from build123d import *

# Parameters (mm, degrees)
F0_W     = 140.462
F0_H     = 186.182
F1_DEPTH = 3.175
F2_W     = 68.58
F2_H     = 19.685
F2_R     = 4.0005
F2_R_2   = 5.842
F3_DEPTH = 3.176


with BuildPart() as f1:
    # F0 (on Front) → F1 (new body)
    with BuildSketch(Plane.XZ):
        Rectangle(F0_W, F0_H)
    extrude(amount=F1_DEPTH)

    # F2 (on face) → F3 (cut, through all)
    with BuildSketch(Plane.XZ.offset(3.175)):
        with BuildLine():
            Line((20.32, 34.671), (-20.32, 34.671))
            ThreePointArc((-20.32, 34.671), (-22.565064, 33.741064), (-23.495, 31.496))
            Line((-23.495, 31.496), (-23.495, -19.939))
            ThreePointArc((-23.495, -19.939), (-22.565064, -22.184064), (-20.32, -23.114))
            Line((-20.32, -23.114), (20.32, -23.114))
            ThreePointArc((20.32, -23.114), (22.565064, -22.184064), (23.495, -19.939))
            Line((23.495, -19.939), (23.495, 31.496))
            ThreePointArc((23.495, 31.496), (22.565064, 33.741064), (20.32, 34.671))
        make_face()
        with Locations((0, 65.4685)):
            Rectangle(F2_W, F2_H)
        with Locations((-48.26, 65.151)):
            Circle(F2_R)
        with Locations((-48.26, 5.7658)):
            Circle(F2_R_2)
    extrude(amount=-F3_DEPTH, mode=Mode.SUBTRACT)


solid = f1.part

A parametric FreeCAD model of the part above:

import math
import FreeCAD as App
import Part
import Sketcher
Q = App.Units.Quantity


def add_polygon(sketch, points):
    """Adds a closed chain of lines whose ends are joined by coincident constraints."""
    first, n = sketch.GeometryCount, len(points)
    for a, b in zip(points, points[1:] + points[:1]):
        sketch.addGeometry(Part.LineSegment(App.Vector(*a, 0), App.Vector(*b, 0)), False)
    for i in range(n):
        sketch.addConstraint(Sketcher.Constraint("Coincident", first + i, 2, first + (i + 1) % n, 1))

doc = App.newDocument("Part")
params = doc.addObject("Spreadsheet::Sheet", "Params")
for row, (alias, value) in enumerate([
    ("sketch1_width", "5.53 in"),
    ("sketch1_height", "7.33 in"),
    ("pad1_length", "0.125 in"),
    ("sketch2_diameter", "0.46 in"),
    ("sketch2_diameter2", "0.315 in"),
    ("sketch2_width", "1.6 in"),
    ("sketch2_width2", "2.7 in"),
    ("sketch2_radius", "0.125 in"),
], start=1):
    params.set(f"A{row}", alias)
    params.set(f"B{row}", "=" + value)
    params.setAlias(f"B{row}", alias)

body = doc.addObject("PartDesign::Body", "Body")

sketch1 = body.newObject("Sketcher::SketchObject", "Sketch")
sketch1.AttachmentSupport = (doc.getObject("XZ_Plane"), [""])
sketch1.MapMode = "FlatFace"
add_polygon(sketch1, [(-70, 93), (-70, -93), (70, -93), (70, 93)])
sketch1.addConstraint([
    Sketcher.Constraint("Vertical", 0),
    Sketcher.Constraint("Horizontal", 1),
    Sketcher.Constraint("Vertical", 2),
    Sketcher.Constraint("Horizontal", 3),
    Sketcher.Constraint("Symmetric", 0, 2, 2, 2, -1, 1),
    Sketcher.Constraint("DistanceX", 1, 1, 1, 2, Q("5.53 in")),
    Sketcher.Constraint("DistanceY", 0, 2, 0, 1, Q("7.33 in")),
])
sketch1.setExpression("Constraints[9]", "Params.sketch1_width")
sketch1.setExpression("Constraints[10]", "Params.sketch1_height")
pad1 = body.newObject("PartDesign::Pad", "Pad")
pad1.Profile = sketch1
pad1.setExpression("Length", "Params.pad1_length")

sketch2 = body.newObject("Sketcher::SketchObject", "Sketch001")
sketch2.AttachmentSupport = (doc.getObject("XZ_Plane"), [""])
sketch2.MapMode = "FlatFace"
sketch2.AttachmentOffset = App.Placement(App.Vector(0, 0, 0.125 * 25.4), App.Rotation())
sketch2.addGeometry(Part.LineSegment(App.Vector(20.3, 34.7, 0), App.Vector(-20.3, 34.7, 0)), False)
sketch2.addGeometry(Part.ArcOfCircle(Part.Circle(App.Vector(-20.3, 31.5, 0), App.Vector(0, 0, 1), 3.2), math.radians(90), math.radians(180)), False)
sketch2.addGeometry(Part.LineSegment(App.Vector(-23.5, 31.5, 0), App.Vector(-23.5, -19.9, 0)), False)
sketch2.addGeometry(Part.ArcOfCircle(Part.Circle(App.Vector(-20.3, -19.9, 0), App.Vector(0, 0, 1), 3.2), math.radians(-180), math.radians(-90)), False)
sketch2.addGeometry(Part.LineSegment(App.Vector(-20.3, -23.1, 0), App.Vector(20.3, -23.1, 0)), False)
sketch2.addGeometry(Part.ArcOfCircle(Part.Circle(App.Vector(20.3, -19.9, 0), App.Vector(0, 0, 1), 3.2), math.radians(-90), math.radians(0)), False)
sketch2.addGeometry(Part.LineSegment(App.Vector(23.5, -19.9, 0), App.Vector(23.5, 31.5, 0)), False)
sketch2.addGeometry(Part.ArcOfCircle(Part.Circle(App.Vector(20.3, 31.5, 0), App.Vector(0, 0, 1), 3.2), math.radians(0), math.radians(90)), False)
add_polygon(sketch2, [(-34.3, 75.3), (-34.3, 55.6), (34.3, 55.6), (34.3, 75.3)])
sketch2.addGeometry(Part.Circle(App.Vector(-48.3, 65.2, 0), App.Vector(0, 0, 1), 4), False)
sketch2.addGeometry(Part.Circle(App.Vector(-48.3, 5.8, 0), App.Vector(0, 0, 1), 5.8), False)
sketch2.addConstraint([
    Sketcher.Constraint("Tangent", 0, 2, 1, 1),
    Sketcher.Constraint("Tangent", 1, 2, 2, 1),
    Sketcher.Constraint("Tangent", 2, 2, 3, 1),
    Sketcher.Constraint("Tangent", 3, 2, 4, 1),
    Sketcher.Constraint("Tangent", 4, 2, 5, 1),
    Sketcher.Constraint("Tangent", 5, 2, 6, 1),
    Sketcher.Constraint("Tangent", 6, 2, 7, 1),
    Sketcher.Constraint("Tangent", 7, 2, 0, 1),
    Sketcher.Constraint("Horizontal", 0),
    Sketcher.Constraint("Vertical", 2),
    Sketcher.Constraint("Horizontal", 4),
    Sketcher.Constraint("Vertical", 6),
    Sketcher.Constraint("Vertical", 8),
    Sketcher.Constraint("Horizontal", 9),
    Sketcher.Constraint("Vertical", 10),
    Sketcher.Constraint("Horizontal", 11),
    Sketcher.Constraint("Equal", 1, 3),
    Sketcher.Constraint("Equal", 3, 5),
    Sketcher.Constraint("Equal", 5, 7),
    Sketcher.Constraint("Vertical", 12, 3, 13, 3),
    Sketcher.Constraint("Diameter", 13, Q("0.46 in")),
    Sketcher.Constraint("Diameter", 12, Q("0.315 in")),
    Sketcher.Constraint("DistanceX", 0, 2, 0, 1, Q("1.6 in")),
    Sketcher.Constraint("DistanceX", 9, 1, 9, 2, Q("2.7 in")),
    Sketcher.Constraint("Radius", 1, Q("0.125 in")),
    Sketcher.Constraint("DistanceX", 1, 3, -1, 1, Q("0.8 in")),
    Sketcher.Constraint("DistanceX", 12, 3, -1, 1, Q("1.9 in")),
    Sketcher.Constraint("DistanceY", 0, 2, 12, 3, Q("1.2 in")),
    Sketcher.Constraint("DistanceY", 7, 2, 10, 2, Q("1.6 in")),
    Sketcher.Constraint("DistanceY", 2, 2, 2, 1, Q("2.025 in")),
    Sketcher.Constraint("DistanceY", 8, 2, 8, 1, Q("0.775 in")),
    Sketcher.Constraint("DistanceY", -1, 1, 1, 3, Q("1.24 in")),
    Sketcher.Constraint("DistanceX", 8, 2, -1, 1, Q("1.35 in")),
    Sketcher.Constraint("DistanceY", -1, 1, 13, 3, Q("0.227 in")),
])
sketch2.setExpression("Constraints[24]", "Params.sketch2_diameter")
sketch2.setExpression("Constraints[25]", "Params.sketch2_diameter2")
sketch2.setExpression("Constraints[26]", "Params.sketch2_width")
sketch2.setExpression("Constraints[27]", "Params.sketch2_width2")
sketch2.setExpression("Constraints[28]", "Params.sketch2_radius")
pocket1 = body.newObject("PartDesign::Pocket", "Pocket")
pocket1.Profile = sketch2
pocket1.Type = "ThroughAll"

doc.recompute()
